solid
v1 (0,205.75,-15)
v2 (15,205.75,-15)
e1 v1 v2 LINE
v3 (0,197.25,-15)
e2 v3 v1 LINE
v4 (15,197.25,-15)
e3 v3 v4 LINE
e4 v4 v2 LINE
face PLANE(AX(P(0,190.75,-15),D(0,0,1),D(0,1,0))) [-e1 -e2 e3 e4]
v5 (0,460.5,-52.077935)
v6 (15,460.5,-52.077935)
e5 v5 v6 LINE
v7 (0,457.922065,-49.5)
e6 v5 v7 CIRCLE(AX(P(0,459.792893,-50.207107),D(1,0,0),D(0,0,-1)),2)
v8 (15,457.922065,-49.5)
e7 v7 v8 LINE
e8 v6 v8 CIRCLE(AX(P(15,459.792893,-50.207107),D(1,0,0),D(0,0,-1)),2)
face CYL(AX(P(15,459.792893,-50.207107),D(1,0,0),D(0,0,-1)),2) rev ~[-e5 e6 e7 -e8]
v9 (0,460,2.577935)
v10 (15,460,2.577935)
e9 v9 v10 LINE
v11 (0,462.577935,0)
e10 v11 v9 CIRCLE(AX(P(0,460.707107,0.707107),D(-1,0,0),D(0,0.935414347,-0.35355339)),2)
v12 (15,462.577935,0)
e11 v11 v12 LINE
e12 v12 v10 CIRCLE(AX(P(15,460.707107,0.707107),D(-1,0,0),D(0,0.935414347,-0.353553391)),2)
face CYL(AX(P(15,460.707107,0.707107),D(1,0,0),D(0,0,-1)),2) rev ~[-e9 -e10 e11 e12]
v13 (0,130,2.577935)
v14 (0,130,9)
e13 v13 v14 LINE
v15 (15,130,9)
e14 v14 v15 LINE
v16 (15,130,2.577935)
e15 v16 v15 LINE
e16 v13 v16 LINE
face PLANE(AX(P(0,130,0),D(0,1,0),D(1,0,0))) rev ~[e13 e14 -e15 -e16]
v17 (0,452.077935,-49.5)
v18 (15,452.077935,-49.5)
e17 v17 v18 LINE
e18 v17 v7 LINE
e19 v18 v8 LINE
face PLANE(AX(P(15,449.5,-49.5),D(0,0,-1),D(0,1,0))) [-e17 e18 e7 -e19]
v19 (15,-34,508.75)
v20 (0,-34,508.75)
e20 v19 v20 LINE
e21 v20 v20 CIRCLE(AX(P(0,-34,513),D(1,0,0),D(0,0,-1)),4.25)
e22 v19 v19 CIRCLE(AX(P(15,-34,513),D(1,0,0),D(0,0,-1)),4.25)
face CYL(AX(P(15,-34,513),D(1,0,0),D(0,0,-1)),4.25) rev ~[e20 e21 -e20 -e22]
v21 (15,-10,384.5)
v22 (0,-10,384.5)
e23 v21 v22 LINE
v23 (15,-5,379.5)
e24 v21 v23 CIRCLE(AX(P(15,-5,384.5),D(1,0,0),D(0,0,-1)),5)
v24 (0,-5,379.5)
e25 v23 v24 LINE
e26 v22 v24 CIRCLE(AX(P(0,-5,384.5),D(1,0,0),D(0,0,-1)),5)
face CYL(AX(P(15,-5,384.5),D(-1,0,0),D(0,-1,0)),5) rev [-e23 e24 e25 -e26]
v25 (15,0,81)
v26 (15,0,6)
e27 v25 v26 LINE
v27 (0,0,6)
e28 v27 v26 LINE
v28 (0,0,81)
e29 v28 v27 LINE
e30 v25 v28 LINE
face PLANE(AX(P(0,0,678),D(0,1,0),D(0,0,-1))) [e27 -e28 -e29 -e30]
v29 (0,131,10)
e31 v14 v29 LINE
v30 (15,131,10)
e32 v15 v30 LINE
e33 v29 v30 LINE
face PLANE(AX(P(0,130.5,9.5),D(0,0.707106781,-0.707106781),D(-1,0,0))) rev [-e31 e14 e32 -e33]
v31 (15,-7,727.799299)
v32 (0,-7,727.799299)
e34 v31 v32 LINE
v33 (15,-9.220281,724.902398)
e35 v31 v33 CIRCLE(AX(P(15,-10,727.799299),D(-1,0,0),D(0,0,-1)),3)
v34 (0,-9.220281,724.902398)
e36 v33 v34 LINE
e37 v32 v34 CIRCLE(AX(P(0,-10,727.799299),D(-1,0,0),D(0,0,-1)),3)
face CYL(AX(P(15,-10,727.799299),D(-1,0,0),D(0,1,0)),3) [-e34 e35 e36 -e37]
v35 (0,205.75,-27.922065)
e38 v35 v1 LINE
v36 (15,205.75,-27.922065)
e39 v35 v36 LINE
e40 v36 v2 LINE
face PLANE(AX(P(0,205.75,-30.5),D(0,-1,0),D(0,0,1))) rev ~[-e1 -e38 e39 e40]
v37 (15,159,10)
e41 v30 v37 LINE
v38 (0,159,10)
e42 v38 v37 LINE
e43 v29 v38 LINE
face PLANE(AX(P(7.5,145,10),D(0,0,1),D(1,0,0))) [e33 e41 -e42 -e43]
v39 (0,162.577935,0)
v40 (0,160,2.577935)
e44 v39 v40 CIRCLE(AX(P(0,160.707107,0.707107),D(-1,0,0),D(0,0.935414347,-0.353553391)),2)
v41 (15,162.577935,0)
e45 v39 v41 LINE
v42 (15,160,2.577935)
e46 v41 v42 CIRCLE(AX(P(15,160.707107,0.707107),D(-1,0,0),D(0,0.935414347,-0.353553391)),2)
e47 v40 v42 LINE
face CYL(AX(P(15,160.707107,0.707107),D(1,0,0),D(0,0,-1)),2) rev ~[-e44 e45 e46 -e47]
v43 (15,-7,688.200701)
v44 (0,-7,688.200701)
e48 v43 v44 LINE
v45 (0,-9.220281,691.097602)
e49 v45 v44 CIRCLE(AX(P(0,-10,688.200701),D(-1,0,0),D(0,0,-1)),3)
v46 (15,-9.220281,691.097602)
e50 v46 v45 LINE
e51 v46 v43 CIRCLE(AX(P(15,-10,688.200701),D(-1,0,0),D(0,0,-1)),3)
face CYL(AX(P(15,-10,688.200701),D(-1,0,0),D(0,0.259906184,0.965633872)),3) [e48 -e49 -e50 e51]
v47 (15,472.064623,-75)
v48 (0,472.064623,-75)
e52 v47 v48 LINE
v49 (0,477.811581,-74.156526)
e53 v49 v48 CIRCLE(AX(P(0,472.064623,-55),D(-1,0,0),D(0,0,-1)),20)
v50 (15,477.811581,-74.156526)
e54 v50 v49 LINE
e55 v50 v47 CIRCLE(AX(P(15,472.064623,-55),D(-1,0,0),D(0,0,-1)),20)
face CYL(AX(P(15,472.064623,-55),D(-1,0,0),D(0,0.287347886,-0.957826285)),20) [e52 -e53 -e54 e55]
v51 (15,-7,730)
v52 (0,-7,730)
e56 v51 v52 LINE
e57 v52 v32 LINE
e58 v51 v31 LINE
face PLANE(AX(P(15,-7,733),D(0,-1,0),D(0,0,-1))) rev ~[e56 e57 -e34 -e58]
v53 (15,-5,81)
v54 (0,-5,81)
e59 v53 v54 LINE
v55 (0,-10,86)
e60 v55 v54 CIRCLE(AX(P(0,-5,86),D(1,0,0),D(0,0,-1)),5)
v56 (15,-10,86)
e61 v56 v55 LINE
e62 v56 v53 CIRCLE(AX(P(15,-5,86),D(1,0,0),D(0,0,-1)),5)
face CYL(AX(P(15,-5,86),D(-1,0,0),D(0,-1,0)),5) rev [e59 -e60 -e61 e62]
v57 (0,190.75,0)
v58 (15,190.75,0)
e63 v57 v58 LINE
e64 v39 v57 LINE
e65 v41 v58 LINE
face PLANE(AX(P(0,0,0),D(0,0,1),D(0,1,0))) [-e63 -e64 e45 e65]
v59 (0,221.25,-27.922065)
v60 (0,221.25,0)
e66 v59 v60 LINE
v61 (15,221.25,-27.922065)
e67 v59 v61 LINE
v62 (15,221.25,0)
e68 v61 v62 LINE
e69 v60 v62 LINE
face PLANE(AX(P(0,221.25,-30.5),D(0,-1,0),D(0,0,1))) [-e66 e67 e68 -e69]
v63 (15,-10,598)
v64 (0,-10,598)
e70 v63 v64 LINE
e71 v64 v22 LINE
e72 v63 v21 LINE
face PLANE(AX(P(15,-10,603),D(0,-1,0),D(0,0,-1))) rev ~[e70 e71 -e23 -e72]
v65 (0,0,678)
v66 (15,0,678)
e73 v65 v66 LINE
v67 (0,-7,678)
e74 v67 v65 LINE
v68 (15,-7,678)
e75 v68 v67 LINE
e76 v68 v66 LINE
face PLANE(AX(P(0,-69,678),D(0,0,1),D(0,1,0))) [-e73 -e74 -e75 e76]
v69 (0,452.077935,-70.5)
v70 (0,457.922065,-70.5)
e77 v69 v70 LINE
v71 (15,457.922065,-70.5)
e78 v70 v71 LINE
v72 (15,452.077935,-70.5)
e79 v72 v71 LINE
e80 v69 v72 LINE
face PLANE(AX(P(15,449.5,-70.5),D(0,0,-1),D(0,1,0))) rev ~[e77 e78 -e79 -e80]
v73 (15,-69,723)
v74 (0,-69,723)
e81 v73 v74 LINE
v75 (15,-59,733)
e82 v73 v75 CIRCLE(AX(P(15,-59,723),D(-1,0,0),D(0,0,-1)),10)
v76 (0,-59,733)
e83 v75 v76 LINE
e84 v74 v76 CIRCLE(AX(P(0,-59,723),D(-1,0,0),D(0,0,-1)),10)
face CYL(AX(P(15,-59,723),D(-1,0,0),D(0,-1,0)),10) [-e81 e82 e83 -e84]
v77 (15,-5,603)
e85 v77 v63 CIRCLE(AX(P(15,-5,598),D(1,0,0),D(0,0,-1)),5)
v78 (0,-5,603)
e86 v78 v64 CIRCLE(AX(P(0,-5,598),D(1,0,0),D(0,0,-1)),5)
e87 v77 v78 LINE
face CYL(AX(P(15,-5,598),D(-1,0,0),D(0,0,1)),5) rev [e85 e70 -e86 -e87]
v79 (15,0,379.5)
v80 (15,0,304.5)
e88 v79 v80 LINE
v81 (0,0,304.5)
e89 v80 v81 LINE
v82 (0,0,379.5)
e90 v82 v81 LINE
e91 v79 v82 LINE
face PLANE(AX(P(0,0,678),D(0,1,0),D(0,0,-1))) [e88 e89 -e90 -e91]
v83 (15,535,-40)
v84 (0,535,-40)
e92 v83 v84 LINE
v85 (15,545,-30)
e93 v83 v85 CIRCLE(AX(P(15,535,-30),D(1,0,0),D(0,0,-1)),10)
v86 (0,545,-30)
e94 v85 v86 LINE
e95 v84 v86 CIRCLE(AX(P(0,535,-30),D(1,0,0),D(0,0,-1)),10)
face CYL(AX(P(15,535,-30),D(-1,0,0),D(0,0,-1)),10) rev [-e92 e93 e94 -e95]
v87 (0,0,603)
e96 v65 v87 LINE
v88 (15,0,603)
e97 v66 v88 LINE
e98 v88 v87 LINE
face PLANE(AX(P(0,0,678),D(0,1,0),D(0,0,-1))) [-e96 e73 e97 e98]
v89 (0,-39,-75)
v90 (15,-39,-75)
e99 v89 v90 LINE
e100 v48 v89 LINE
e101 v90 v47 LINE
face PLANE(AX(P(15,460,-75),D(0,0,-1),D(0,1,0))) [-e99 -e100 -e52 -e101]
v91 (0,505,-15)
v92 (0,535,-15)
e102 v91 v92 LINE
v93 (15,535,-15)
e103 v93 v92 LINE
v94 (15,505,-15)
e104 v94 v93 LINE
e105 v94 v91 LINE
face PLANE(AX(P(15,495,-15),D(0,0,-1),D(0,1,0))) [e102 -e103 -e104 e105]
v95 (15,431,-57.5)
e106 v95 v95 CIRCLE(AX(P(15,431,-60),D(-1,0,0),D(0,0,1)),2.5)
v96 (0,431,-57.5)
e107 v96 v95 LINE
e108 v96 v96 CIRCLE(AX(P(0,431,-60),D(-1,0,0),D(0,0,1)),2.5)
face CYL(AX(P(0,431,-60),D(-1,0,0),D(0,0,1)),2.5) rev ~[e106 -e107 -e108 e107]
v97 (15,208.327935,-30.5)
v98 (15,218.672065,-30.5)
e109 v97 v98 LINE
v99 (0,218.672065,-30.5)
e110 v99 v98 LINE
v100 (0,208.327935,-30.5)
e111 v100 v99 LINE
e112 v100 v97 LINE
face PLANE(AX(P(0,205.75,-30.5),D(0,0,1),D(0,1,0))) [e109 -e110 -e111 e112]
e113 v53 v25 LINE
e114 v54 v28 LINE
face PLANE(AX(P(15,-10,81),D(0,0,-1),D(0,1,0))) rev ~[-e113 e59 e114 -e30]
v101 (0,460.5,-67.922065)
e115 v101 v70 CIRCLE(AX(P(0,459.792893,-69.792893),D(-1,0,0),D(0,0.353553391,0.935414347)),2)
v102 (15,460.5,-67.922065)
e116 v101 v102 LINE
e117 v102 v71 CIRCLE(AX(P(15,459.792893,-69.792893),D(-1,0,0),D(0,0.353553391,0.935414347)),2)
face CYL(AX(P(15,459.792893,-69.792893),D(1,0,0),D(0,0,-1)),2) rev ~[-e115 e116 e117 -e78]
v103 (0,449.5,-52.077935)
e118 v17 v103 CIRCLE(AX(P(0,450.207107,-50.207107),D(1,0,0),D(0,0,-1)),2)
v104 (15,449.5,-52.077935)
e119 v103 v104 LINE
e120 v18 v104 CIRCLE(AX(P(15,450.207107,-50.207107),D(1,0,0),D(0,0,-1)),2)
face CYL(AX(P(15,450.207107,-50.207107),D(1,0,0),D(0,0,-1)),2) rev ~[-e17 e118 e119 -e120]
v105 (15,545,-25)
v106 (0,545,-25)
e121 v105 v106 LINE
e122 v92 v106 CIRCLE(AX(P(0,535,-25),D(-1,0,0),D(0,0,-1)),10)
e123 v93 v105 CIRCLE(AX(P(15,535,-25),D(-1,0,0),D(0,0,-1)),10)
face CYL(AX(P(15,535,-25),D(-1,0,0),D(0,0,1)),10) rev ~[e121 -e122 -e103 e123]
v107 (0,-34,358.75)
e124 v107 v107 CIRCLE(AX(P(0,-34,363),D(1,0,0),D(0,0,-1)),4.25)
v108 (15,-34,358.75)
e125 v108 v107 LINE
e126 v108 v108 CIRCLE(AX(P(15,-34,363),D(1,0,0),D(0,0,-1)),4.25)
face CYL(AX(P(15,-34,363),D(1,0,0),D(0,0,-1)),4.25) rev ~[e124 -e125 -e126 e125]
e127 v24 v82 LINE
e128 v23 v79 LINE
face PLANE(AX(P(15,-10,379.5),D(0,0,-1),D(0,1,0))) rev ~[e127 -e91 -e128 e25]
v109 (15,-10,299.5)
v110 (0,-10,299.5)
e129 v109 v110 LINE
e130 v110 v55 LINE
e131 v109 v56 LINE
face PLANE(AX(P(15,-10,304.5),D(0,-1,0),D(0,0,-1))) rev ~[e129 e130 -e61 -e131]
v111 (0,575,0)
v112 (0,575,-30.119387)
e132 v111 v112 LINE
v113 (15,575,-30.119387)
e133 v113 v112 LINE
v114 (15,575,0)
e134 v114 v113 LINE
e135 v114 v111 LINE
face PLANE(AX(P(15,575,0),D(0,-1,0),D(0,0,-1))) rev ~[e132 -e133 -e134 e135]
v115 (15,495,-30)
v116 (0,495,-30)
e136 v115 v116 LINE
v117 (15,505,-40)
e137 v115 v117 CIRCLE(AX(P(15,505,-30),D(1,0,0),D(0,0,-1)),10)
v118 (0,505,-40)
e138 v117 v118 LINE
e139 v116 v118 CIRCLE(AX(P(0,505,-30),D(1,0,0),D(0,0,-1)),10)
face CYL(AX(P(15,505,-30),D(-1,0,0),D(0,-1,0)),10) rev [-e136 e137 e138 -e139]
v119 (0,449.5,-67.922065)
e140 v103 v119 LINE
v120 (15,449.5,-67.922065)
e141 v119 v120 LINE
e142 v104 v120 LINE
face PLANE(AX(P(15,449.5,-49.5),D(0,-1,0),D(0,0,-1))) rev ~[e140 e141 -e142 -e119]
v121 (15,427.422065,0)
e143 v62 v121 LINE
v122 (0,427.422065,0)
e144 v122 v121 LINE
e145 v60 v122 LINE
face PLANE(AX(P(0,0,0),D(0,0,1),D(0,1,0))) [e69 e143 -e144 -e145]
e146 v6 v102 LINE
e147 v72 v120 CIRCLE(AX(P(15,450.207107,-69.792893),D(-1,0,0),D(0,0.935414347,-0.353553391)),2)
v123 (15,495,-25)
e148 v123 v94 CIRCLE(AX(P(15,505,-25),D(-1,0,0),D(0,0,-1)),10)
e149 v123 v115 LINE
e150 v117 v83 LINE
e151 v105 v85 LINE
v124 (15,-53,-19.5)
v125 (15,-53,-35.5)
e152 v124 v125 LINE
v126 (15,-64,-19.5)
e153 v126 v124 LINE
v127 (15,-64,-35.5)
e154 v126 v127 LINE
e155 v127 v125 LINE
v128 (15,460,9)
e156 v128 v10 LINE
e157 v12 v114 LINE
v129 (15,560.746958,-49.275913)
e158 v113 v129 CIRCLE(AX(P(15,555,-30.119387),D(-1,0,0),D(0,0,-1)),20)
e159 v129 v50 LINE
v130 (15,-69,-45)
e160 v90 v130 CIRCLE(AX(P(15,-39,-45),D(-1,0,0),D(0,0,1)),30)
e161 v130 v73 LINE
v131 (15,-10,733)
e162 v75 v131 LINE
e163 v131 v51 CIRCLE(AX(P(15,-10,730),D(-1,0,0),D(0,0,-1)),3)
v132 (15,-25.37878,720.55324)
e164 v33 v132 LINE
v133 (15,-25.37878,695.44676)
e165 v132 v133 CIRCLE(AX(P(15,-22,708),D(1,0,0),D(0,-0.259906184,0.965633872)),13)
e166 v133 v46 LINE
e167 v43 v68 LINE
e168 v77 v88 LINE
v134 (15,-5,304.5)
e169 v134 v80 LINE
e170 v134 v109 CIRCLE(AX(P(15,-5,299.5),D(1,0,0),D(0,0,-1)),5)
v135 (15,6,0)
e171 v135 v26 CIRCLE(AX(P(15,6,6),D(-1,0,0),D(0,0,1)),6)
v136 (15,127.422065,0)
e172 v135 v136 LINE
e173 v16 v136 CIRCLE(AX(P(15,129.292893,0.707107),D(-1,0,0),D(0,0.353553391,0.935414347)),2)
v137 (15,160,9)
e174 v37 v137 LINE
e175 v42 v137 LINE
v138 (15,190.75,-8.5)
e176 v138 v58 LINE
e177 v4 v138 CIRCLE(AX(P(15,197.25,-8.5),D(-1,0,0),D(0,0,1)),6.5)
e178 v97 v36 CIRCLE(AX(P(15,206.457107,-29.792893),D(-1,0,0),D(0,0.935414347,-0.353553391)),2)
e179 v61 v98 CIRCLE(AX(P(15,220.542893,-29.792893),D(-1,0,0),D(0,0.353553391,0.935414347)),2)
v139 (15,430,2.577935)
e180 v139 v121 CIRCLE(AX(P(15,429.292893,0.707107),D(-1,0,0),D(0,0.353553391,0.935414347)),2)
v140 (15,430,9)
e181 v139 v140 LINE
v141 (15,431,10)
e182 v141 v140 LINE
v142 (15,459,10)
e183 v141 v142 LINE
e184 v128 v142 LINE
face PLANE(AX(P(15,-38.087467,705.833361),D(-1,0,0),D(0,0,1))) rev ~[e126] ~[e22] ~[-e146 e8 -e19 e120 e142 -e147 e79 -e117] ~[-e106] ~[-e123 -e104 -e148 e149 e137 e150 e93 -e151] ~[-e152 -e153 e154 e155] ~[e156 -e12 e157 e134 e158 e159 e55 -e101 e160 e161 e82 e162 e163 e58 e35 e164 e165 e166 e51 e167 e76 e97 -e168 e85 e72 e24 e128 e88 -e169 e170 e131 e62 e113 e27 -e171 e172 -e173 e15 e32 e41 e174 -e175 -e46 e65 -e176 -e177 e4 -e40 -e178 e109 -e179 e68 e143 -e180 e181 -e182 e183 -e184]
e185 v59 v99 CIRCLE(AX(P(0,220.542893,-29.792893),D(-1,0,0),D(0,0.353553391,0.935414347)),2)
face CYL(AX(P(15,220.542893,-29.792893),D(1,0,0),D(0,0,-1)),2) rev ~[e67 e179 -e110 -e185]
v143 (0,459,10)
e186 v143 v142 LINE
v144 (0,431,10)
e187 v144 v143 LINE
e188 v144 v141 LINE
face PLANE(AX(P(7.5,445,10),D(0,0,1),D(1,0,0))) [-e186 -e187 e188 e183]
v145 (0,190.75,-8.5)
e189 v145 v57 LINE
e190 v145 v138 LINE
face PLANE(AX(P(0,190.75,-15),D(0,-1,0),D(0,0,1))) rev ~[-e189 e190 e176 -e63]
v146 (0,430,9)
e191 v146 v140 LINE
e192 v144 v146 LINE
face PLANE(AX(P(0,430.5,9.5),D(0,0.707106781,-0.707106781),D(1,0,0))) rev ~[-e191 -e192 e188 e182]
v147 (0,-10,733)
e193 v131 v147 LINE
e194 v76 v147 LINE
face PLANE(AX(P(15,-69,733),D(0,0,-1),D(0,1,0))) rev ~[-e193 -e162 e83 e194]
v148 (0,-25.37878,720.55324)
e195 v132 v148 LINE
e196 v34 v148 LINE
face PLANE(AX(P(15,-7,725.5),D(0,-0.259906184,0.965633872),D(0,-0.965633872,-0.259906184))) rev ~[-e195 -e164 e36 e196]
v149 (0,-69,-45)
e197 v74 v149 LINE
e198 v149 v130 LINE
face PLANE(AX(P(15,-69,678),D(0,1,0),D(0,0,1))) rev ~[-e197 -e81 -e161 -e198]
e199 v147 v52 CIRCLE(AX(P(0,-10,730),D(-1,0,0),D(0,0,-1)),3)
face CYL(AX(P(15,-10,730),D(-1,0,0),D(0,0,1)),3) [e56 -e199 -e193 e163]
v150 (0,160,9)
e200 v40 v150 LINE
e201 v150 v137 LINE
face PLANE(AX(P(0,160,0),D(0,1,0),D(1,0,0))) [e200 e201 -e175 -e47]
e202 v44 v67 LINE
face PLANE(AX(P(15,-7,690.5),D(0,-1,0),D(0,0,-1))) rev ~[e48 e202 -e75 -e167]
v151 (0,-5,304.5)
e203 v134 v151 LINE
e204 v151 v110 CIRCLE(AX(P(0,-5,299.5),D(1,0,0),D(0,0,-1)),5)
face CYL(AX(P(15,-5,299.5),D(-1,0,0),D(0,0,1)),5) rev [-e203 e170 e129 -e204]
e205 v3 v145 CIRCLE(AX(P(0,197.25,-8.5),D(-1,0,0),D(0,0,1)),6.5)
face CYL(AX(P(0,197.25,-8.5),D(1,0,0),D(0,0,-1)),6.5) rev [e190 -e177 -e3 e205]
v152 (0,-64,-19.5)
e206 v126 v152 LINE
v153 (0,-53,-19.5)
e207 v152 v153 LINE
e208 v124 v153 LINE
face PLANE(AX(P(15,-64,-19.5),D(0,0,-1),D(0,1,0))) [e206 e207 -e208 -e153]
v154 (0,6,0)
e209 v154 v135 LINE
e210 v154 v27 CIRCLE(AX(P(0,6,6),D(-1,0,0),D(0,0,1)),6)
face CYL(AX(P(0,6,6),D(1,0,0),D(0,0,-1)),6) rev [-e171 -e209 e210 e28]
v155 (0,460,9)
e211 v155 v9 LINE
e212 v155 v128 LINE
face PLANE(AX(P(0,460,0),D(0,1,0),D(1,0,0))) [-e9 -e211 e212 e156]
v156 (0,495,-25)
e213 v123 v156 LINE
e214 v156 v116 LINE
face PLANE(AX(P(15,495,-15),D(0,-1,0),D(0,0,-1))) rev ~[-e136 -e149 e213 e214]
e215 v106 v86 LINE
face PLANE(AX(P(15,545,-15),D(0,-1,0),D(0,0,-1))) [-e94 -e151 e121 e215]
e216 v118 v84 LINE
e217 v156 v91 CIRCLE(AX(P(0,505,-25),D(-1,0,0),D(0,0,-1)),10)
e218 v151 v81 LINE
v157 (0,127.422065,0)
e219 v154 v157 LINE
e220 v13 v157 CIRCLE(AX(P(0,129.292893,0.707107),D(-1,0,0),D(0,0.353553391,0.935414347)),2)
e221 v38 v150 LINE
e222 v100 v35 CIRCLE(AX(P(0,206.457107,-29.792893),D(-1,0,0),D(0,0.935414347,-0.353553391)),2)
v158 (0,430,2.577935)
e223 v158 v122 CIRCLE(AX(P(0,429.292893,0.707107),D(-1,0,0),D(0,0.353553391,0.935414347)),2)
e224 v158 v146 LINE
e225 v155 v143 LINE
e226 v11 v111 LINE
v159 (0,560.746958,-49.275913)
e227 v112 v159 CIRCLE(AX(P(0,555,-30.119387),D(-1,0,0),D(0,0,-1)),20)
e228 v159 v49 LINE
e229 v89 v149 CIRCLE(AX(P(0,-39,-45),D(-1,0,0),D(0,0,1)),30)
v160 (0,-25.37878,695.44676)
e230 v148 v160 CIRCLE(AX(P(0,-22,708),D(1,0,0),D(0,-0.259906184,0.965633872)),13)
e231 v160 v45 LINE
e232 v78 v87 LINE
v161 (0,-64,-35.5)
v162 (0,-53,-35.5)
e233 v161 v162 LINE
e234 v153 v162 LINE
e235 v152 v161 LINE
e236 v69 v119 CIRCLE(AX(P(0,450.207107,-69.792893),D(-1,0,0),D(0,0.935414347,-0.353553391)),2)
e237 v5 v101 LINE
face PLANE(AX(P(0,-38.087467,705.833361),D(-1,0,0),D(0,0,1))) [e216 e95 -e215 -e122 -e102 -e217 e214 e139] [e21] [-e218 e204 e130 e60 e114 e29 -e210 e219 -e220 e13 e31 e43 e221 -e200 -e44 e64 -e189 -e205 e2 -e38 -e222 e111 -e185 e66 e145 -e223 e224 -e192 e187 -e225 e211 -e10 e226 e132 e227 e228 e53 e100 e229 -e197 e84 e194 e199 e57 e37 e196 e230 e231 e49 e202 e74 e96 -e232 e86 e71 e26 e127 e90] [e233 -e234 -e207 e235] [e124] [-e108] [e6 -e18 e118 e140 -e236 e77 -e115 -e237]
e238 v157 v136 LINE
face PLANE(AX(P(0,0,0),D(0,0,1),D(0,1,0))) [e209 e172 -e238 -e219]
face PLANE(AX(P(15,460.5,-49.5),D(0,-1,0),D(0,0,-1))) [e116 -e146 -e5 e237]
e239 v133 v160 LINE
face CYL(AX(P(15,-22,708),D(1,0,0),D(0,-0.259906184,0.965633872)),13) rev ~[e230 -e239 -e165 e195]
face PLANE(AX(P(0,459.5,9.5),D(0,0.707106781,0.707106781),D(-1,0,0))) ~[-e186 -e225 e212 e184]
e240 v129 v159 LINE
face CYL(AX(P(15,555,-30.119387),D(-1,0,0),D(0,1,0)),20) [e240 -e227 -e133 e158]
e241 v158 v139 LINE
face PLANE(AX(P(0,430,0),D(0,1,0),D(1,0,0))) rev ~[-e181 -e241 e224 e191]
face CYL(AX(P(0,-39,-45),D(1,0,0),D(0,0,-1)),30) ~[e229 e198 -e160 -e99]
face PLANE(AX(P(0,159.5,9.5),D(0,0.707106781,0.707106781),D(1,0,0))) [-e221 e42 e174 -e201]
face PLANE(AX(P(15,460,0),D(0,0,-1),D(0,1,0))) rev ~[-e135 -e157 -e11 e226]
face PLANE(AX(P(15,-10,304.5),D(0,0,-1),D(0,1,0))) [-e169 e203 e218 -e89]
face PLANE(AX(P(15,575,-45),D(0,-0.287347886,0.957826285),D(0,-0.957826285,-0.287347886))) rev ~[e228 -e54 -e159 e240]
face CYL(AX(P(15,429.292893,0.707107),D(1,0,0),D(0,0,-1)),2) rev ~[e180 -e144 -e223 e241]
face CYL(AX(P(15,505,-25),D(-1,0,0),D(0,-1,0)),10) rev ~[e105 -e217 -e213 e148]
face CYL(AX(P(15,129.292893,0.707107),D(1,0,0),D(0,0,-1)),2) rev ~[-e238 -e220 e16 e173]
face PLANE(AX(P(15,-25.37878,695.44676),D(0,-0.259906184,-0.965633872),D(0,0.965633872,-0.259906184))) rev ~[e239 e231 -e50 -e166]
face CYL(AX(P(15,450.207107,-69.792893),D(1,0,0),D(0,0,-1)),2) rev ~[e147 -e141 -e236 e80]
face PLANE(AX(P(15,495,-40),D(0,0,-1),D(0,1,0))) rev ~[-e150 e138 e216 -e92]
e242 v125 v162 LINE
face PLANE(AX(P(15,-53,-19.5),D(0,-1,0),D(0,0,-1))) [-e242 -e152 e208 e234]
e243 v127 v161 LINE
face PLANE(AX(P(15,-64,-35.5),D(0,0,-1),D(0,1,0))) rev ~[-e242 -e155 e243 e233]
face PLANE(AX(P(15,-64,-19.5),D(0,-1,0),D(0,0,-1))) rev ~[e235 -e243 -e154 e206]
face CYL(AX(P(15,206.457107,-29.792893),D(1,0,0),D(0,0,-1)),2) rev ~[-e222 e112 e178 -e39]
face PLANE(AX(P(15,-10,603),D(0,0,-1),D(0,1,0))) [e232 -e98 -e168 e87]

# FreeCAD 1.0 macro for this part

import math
import FreeCAD as App
import Part
import Sketcher
Q = App.Units.Quantity


def edges_at(feature, points):
    """Names of the edges that pass closest to the given points."""
    edges = feature.Shape.Edges
    near = lambda p: min(range(len(edges)), key=lambda i: edges[i].distToShape(Part.Vertex(*p))[0])
    return sorted({f"Edge{near(p) + 1}" for p in points})

doc = App.newDocument("Part")
body = doc.addObject("PartDesign::Body", "Body")

# Sketch on YZ plane
sketch1 = body.newObject("Sketcher::SketchObject", "Sketch")
sketch1.AttachmentSupport = (doc.getObject("YZ_Plane"), [""])
sketch1.MapMode = "FlatFace"
sketch1.addGeometry(Part.LineSegment(App.Vector(0, 0, 0), App.Vector(0, 678, 0)), False)
sketch1.addGeometry(Part.LineSegment(App.Vector(0, 678, 0), App.Vector(-69, 678, 0)), False)
sketch1.addGeometry(Part.LineSegment(App.Vector(-69, 678, 0), App.Vector(-69, -75, 0)), False)
sketch1.addGeometry(Part.LineSegment(App.Vector(-69, -75, 0), App.Vector(460, -75, 0)), False)
sketch1.addGeometry(Part.LineSegment(App.Vector(460, -75, 0), App.Vector(460, 0, 0)), False)
sketch1.addGeometry(Part.LineSegment(App.Vector(460, 0, 0), App.Vector(0, 0, 0)), False)
sketch1.addConstraint(Sketcher.Constraint("Coincident", 0, 2, 1, 1))
sketch1.addConstraint(Sketcher.Constraint("Coincident", 1, 2, 2, 1))
sketch1.addConstraint(Sketcher.Constraint("Coincident", 2, 2, 3, 1))
sketch1.addConstraint(Sketcher.Constraint("Coincident", 3, 2, 4, 1))
sketch1.addConstraint(Sketcher.Constraint("Coincident", 4, 2, 5, 1))
sketch1.addConstraint(Sketcher.Constraint("Coincident", 5, 2, 0, 1))
sketch1.addConstraint(Sketcher.Constraint("Vertical", 0))
sketch1.addConstraint(Sketcher.Constraint("Horizontal", 1))
sketch1.addConstraint(Sketcher.Constraint("Vertical", 2))
sketch1.addConstraint(Sketcher.Constraint("Horizontal", 3))
sketch1.addConstraint(Sketcher.Constraint("Vertical", 4))
sketch1.addConstraint(Sketcher.Constraint("Horizontal", 5))
sketch1.addConstraint(Sketcher.Constraint("Coincident", 5, 2, -1, 1))
sketch1.addConstraint(Sketcher.Constraint("DistanceX", 1, 2, 1, 1, Q("69 mm")))
sketch1.addConstraint(Sketcher.Constraint("DistanceX", 3, 1, 3, 2, Q("529 mm")))
sketch1.addConstraint(Sketcher.Constraint("DistanceY", 0, 1, 0, 2, Q("678 mm")))
sketch1.addConstraint(Sketcher.Constraint("DistanceY", 2, 2, 2, 1, Q("753 mm")))
pad1 = body.newObject("PartDesign::Pad", "Pad")
pad1.Profile = sketch1
pad1.Length = 15
doc.recompute()

fillet = body.newObject("PartDesign::Fillet", "Fillet")
fillet.Base = (pad1, edges_at(pad1, [(7.5, -69, -75)]))
fillet.Radius = 30
doc.recompute()

fillet2 = body.newObject("PartDesign::Fillet", "Fillet001")
fillet2.Base = (fillet, edges_at(fillet, [(7.5, 0, 0)]))
fillet2.Radius = 6

# Sketch on YZ plane
sketch2 = body.newObject("Sketcher::SketchObject", "Sketch001")
sketch2.AttachmentSupport = (doc.getObject("YZ_Plane"), [""])
sketch2.MapMode = "FlatFace"
sketch2.addGeometry(Part.LineSegment(App.Vector(221.25, -30.5, 0), App.Vector(205.75, -30.5, 0)), False)
sketch2.addGeometry(Part.LineSegment(App.Vector(205.75, -30.5, 0), App.Vector(205.75, 0, 0)), False)
sketch2.addGeometry(Part.LineSegment(App.Vector(205.75, 0, 0), App.Vector(221.25, 0, 0)), False)
sketch2.addGeometry(Part.LineSegment(App.Vector(221.25, 0, 0), App.Vector(221.25, -30.5, 0)), False)
sketch2.addConstraint(Sketcher.Constraint("Coincident", 0, 2, 1, 1))
sketch2.addConstraint(Sketcher.Constraint("Coincident", 1, 2, 2, 1))
sketch2.addConstraint(Sketcher.Constraint("Coincident", 2, 2, 3, 1))
sketch2.addConstraint(Sketcher.Constraint("Coincident", 3, 2, 0, 1))
sketch2.addConstraint(Sketcher.Constraint("Horizontal", 0))
sketch2.addConstraint(Sketcher.Constraint("Vertical", 1))
sketch2.addConstraint(Sketcher.Constraint("Horizontal", 2))
sketch2.addConstraint(Sketcher.Constraint("Vertical", 3))
sketch2.addConstraint(Sketcher.Constraint("PointOnObject", 1, 2, -1))
sketch2.addConstraint(Sketcher.Constraint("DistanceX", 0, 2, 0, 1, Q("15.5 mm")))
sketch2.addConstraint(Sketcher.Constraint("DistanceY", 1, 1, 1, 2, Q("30.5 mm")))
sketch2.addConstraint(Sketcher.Constraint("DistanceX", -1, 1, 0, 2, Q("205.75 mm")))
pocket1 = body.newObject("PartDesign::Pocket", "Pocket")
pocket1.Profile = sketch2
pocket1.Type = "ThroughAll"
pocket1.Reversed = True

# Sketch on XY plane
sketch3 = body.newObject("Sketcher::SketchObject", "Sketch002")
sketch3.AttachmentSupport = (doc.getObject("XY_Plane"), [""])
sketch3.MapMode = "FlatFace"
sketch3.addGeometry(Part.LineSegment(App.Vector(0, 460, 0), App.Vector(0, 430, 0)), False)
sketch3.addGeometry(Part.LineSegment(App.Vector(0, 430, 0), App.Vector(15, 430, 0)), False)
sketch3.addGeometry(Part.LineSegment(App.Vector(15, 430, 0), App.Vector(15, 460, 0)), False)
sketch3.addGeometry(Part.LineSegment(App.Vector(15, 460, 0), App.Vector(0, 460, 0)), False)
sketch3.addGeometry(Part.LineSegment(App.Vector(0, 160, 0), App.Vector(0, 130, 0)), False)
sketch3.addGeometry(Part.LineSegment(App.Vector(0, 130, 0), App.Vector(15, 130, 0)), False)
sketch3.addGeometry(Part.LineSegment(App.Vector(15, 130, 0), App.Vector(15, 160, 0)), False)
sketch3.addGeometry(Part.LineSegment(App.Vector(15, 160, 0), App.Vector(0, 160, 0)), False)
sketch3.addConstraint(Sketcher.Constraint("Coincident", 0, 2, 1, 1))
sketch3.addConstraint(Sketcher.Constraint("Coincident", 1, 2, 2, 1))
sketch3.addConstraint(Sketcher.Constraint("Coincident", 2, 2, 3, 1))
sketch3.addConstraint(Sketcher.Constraint("Coincident", 3, 2, 0, 1))
sketch3.addConstraint(Sketcher.Constraint("Coincident", 4, 2, 5, 1))
sketch3.addConstraint(Sketcher.Constraint("Coincident", 5, 2, 6, 1))
sketch3.addConstraint(Sketcher.Constraint("Coincident", 6, 2, 7, 1))
sketch3.addConstraint(Sketcher.Constraint("Coincident", 7, 2, 4, 1))
sketch3.addConstraint(Sketcher.Constraint("Vertical", 0))
sketch3.addConstraint(Sketcher.Constraint("Horizontal", 1))
sketch3.addConstraint(Sketcher.Constraint("Vertical", 2))
sketch3.addConstraint(Sketcher.Constraint("Horizontal", 3))
sketch3.addConstraint(Sketcher.Constraint("Vertical", 4))
sketch3.addConstraint(Sketcher.Constraint("Horizontal", 5))
sketch3.addConstraint(Sketcher.Constraint("Vertical", 6))
sketch3.addConstraint(Sketcher.Constraint("Horizontal", 7))
sketch3.addConstraint(Sketcher.Constraint("PointOnObject", 0, 2, -2))
sketch3.addConstraint(Sketcher.Constraint("PointOnObject", 4, 2, -2))
sketch3.addConstraint(Sketcher.Constraint("Vertical", 2, 2, 5, 2))
sketch3.addConstraint(Sketcher.Constraint("Equal", 2, 4))
sketch3.addConstraint(Sketcher.Constraint("DistanceX", 1, 1, 1, 2, Q("15 mm")))
sketch3.addConstraint(Sketcher.Constraint("DistanceY", 0, 2, 0, 1, Q("30 mm")))
sketch3.addConstraint(Sketcher.Constraint("DistanceY", -1, 1, 0, 2, Q("430 mm")))
sketch3.addConstraint(Sketcher.Constraint("DistanceY", -1, 1, 4, 2, Q("130 mm")))
pad2 = body.newObject("PartDesign::Pad", "Pad001")
pad2.Profile = sketch3
pad2.Length = 10

# Sketch on YZ plane
sketch4 = body.newObject("Sketcher::SketchObject", "Sketch003")
sketch4.AttachmentSupport = (doc.getObject("YZ_Plane"), [""])
sketch4.MapMode = "FlatFace"
sketch4.addGeometry(Part.LineSegment(App.Vector(205.75, -15, 0), App.Vector(190.75, -15, 0)), False)
sketch4.addGeometry(Part.LineSegment(App.Vector(190.75, -15, 0), App.Vector(190.75, 0, 0)), False)
sketch4.addGeometry(Part.LineSegment(App.Vector(190.75, 0, 0), App.Vector(205.75, 0, 0)), False)
sketch4.addGeometry(Part.LineSegment(App.Vector(205.75, 0, 0), App.Vector(205.75, -15, 0)), False)
sketch4.addConstraint(Sketcher.Constraint("Coincident", 0, 2, 1, 1))
sketch4.addConstraint(Sketcher.Constraint("Coincident", 1, 2, 2, 1))
sketch4.addConstraint(Sketcher.Constraint("Coincident", 2, 2, 3, 1))
sketch4.addConstraint(Sketcher.Constraint("Coincident", 3, 2, 0, 1))
sketch4.addConstraint(Sketcher.Constraint("Horizontal", 0))
sketch4.addConstraint(Sketcher.Constraint("Vertical", 1))
sketch4.addConstraint(Sketcher.Constraint("Horizontal", 2))
sketch4.addConstraint(Sketcher.Constraint("Vertical", 3))
sketch4.addConstraint(Sketcher.Constraint("PointOnObject", 1, 2, -1))
sketch4.addConstraint(Sketcher.Constraint("Equal", 2, 1))
sketch4.addConstraint(Sketcher.Constraint("DistanceX", 0, 2, 0, 1, Q("15 mm")))
sketch4.addConstraint(Sketcher.Constraint("DistanceX", -1, 1, 0, 2, Q("190.75 mm")))
pocket2 = body.newObject("PartDesign::Pocket", "Pocket001")
pocket2.Profile = sketch4
pocket2.Type = "ThroughAll"
pocket2.Reversed = True
doc.recompute()

fillet3 = body.newObject("PartDesign::Fillet", "Fillet002")
fillet3.Base = (pocket2, edges_at(pocket2, [(7.5, 190.75, -15)]))
fillet3.Radius = 6.5

# Sketch on YZ plane
sketch5 = body.newObject("Sketcher::SketchObject", "Sketch004")
sketch5.AttachmentSupport = (doc.getObject("YZ_Plane"), [""])
sketch5.MapMode = "FlatFace"
sketch5.AttachmentOffset = App.Placement(App.Vector(0, 0, 15), App.Rotation())
sketch5.addGeometry(Part.LineSegment(App.Vector(575, 0, 0), App.Vector(460, 0, 0)), False)
sketch5.addGeometry(Part.LineSegment(App.Vector(460, 0, 0), App.Vector(460, -75, 0)), False)
sketch5.addGeometry(Part.LineSegment(App.Vector(460, -75, 0), App.Vector(575, -75, 0)), False)
sketch5.addGeometry(Part.LineSegment(App.Vector(575, -75, 0), App.Vector(575, 0, 0)), False)
sketch5.addConstraint(Sketcher.Constraint("Coincident", 0, 2, 1, 1))
sketch5.addConstraint(Sketcher.Constraint("Coincident", 1, 2, 2, 1))
sketch5.addConstraint(Sketcher.Constraint("Coincident", 2, 2, 3, 1))
sketch5.addConstraint(Sketcher.Constraint("Coincident", 3, 2, 0, 1))
sketch5.addConstraint(Sketcher.Constraint("Horizontal", 0))
sketch5.addConstraint(Sketcher.Constraint("Vertical", 1))
sketch5.addConstraint(Sketcher.Constraint("Horizontal", 2))
sketch5.addConstraint(Sketcher.Constraint("Vertical", 3))
sketch5.addConstraint(Sketcher.Constraint("PointOnObject", 0, 2, -1))
sketch5.addConstraint(Sketcher.Constraint("DistanceX", 0, 2, 0, 1, Q("115 mm")))
sketch5.addConstraint(Sketcher.Constraint("DistanceY", 1, 2, 1, 1, Q("75 mm")))
sketch5.addConstraint(Sketcher.Constraint("DistanceX", -1, 1, 0, 2, Q("460 mm")))
pad3 = body.newObject("PartDesign::Pad", "Pad002")
pad3.Profile = sketch5
pad3.Length = 15
pad3.Reversed = True

# Sketch on YZ plane
sketch6 = body.newObject("Sketcher::SketchObject", "Sketch005")
sketch6.AttachmentSupport = (doc.getObject("YZ_Plane"), [""])
sketch6.MapMode = "FlatFace"
sketch6.AttachmentOffset = App.Placement(App.Vector(0, 0, 15), App.Rotation())
sketch6.addGeometry(Part.LineSegment(App.Vector(460.5, -49.5, 0), App.Vector(449.5, -49.5, 0)), False)
sketch6.addGeometry(Part.LineSegment(App.Vector(449.5, -49.5, 0), App.Vector(449.5, -70.5, 0)), False)
sketch6.addGeometry(Part.LineSegment(App.Vector(449.5, -70.5, 0), App.Vector(460.5, -70.5, 0)), False)
sketch6.addGeometry(Part.LineSegment(App.Vector(460.5, -70.5, 0), App.Vector(460.5, -49.5, 0)), False)
sketch6.addConstraint(Sketcher.Constraint("Coincident", 0, 2, 1, 1))
sketch6.addConstraint(Sketcher.Constraint("Coincident", 1, 2, 2, 1))
sketch6.addConstraint(Sketcher.Constraint("Coincident", 2, 2, 3, 1))
sketch6.addConstraint(Sketcher.Constraint("Coincident", 3, 2, 0, 1))
sketch6.addConstraint(Sketcher.Constraint("Horizontal", 0))
sketch6.addConstraint(Sketcher.Constraint("Vertical", 1))
sketch6.addConstraint(Sketcher.Constraint("Horizontal", 2))
sketch6.addConstraint(Sketcher.Constraint("Vertical", 3))
sketch6.addConstraint(Sketcher.Constraint("DistanceX", 0, 2, 0, 1, Q("11 mm")))
sketch6.addConstraint(Sketcher.Constraint("DistanceY", 1, 2, 1, 1, Q("21 mm")))
sketch6.addConstraint(Sketcher.Constraint("DistanceX", -1, 1, 0, 2, Q("449.5 mm")))
sketch6.addConstraint(Sketcher.Constraint("DistanceY", 0, 2, -1, 1, Q("49.5 mm")))
pocket3 = body.newObject("PartDesign::Pocket", "Pocket002")
pocket3.Profile = sketch6
pocket3.Type = "ThroughAll"

# Sketch on YZ plane
sketch7 = body.newObject("Sketcher::SketchObject", "Sketch006")
sketch7.AttachmentSupport = (doc.getObject("YZ_Plane"), [""])
sketch7.MapMode = "FlatFace"
sketch7.AttachmentOffset = App.Placement(App.Vector(0, 0, 15), App.Rotation())
sketch7.addGeometry(Part.LineSegment(App.Vector(575, -45, 0), App.Vector(475, -75, 0)), False)
sketch7.addGeometry(Part.LineSegment(App.Vector(475, -75, 0), App.Vector(575, -75, 0)), False)
sketch7.addGeometry(Part.LineSegment(App.Vector(575, -75, 0), App.Vector(575, -45, 0)), False)
sketch7.addConstraint(Sketcher.Constraint("Coincident", 0, 2, 1, 1))
sketch7.addConstraint(Sketcher.Constraint("Coincident", 1, 2, 2, 1))
sketch7.addConstraint(Sketcher.Constraint("Coincident", 2, 2, 0, 1))
sketch7.addConstraint(Sketcher.Constraint("Horizontal", 1))
sketch7.addConstraint(Sketcher.Constraint("Vertical", 2))
sketch7.addConstraint(Sketcher.Constraint("DistanceX", 1, 1, 1, 2, Q("100 mm")))
sketch7.addConstraint(Sketcher.Constraint("DistanceY", 2, 1, 2, 2, Q("30 mm")))
sketch7.addConstraint(Sketcher.Constraint("DistanceX", -1, 1, 0, 2, Q("475 mm")))
sketch7.addConstraint(Sketcher.Constraint("DistanceY", 0, 2, -1, 1, Q("75 mm")))
pocket4 = body.newObject("PartDesign::Pocket", "Pocket003")
pocket4.Profile = sketch7
pocket4.Length = 15

# Sketch on YZ plane
sketch8 = body.newObject("Sketcher::SketchObject", "Sketch007")
sketch8.AttachmentSupport = (doc.getObject("YZ_Plane"), [""])
sketch8.MapMode = "FlatFace"
sketch8.AttachmentOffset = App.Placement(App.Vector(0, 0, 15), App.Rotation())
sketch8.addGeometry(Part.LineSegment(App.Vector(545, -15, 0), App.Vector(495, -15, 0)), False)
sketch8.addGeometry(Part.LineSegment(App.Vector(495, -15, 0), App.Vector(495, -40, 0)), False)
sketch8.addGeometry(Part.LineSegment(App.Vector(495, -40, 0), App.Vector(545, -40, 0)), False)
sketch8.addGeometry(Part.LineSegment(App.Vector(545, -40, 0), App.Vector(545, -15, 0)), False)
sketch8.addConstraint(Sketcher.Constraint("Coincident", 0, 2, 1, 1))
sketch8.addConstraint(Sketcher.Constraint("Coincident", 1, 2, 2, 1))
sketch8.addConstraint(Sketcher.Constraint("Coincident", 2, 2, 3, 1))
sketch8.addConstraint(Sketcher.Constraint("Coincident", 3, 2, 0, 1))
sketch8.addConstraint(Sketcher.Constraint("Horizontal", 0))
sketch8.addConstraint(Sketcher.Constraint("Vertical", 1))
sketch8.addConstraint(Sketcher.Constraint("Horizontal", 2))
sketch8.addConstraint(Sketcher.Constraint("Vertical", 3))
sketch8.addConstraint(Sketcher.Constraint("DistanceX", 0, 2, 0, 1, Q("50 mm")))
sketch8.addConstraint(Sketcher.Constraint("DistanceY", 1, 2, 1, 1, Q("25 mm")))
sketch8.addConstraint(Sketcher.Constraint("DistanceX", -1, 1, 0, 2, Q("495 mm")))
sketch8.addConstraint(Sketcher.Constraint("DistanceY", 0, 2, -1, 1, Q("15 mm")))
pocket5 = body.newObject("PartDesign::Pocket", "Pocket004")
pocket5.Profile = sketch8
pocket5.Length = 15

# Sketch on YZ plane
sketch9 = body.newObject("Sketcher::SketchObject", "Sketch008")
sketch9.AttachmentSupport = (doc.getObject("YZ_Plane"), [""])
sketch9.MapMode = "FlatFace"
sketch9.addGeometry(Part.Circle(App.Vector(431, -60, 0), App.Vector(0, 0, 1), 2.5), False)
sketch9.addConstraint(Sketcher.Constraint("Diameter", 0, Q("5 mm")))
sketch9.addConstraint(Sketcher.Constraint("DistanceX", -1, 1, 0, 3, Q("431 mm")))
sketch9.addConstraint(Sketcher.Constraint("DistanceY", 0, 3, -1, 1, Q("60 mm")))
pocket6 = body.newObject("PartDesign::Pocket", "Pocket005")
pocket6.Profile = sketch9
pocket6.Type = "ThroughAll"
pocket6.Reversed = True
doc.recompute()

fillet4 = body.newObject("PartDesign::Fillet", "Fillet003")
fillet4.Base = (pocket6, edges_at(pocket6, [(7.5, 575, -45), (7.5, 475, -75)]))
fillet4.Radius = 20
doc.recompute()

fillet5 = body.newObject("PartDesign::Fillet", "Fillet004")
fillet5.Base = (fillet4, edges_at(fillet4, [
    (7.5, 495, -15),
    (7.5, 545, -15),
    (7.5, 545, -40),
    (7.5, 495, -40),
]))
fillet5.Radius = 10
doc.recompute()

chamfer = body.newObject("PartDesign::Chamfer", "Chamfer")
chamfer.Base = (fillet5, edges_at(fillet5, [
    (7.5, 430, 10),
    (7.5, 460, 10),
    (7.5, 130, 10),
    (7.5, 160, 10),
]))
chamfer.Size = 1

# Sketch on YZ plane
sketch10 = body.newObject("Sketcher::SketchObject", "Sketch009")
sketch10.AttachmentSupport = (doc.getObject("YZ_Plane"), [""])
sketch10.MapMode = "FlatFace"
sketch10.AttachmentOffset = App.Placement(App.Vector(0, 0, 15), App.Rotation())
sketch10.addGeometry(Part.LineSegment(App.Vector(-53, -19.5, 0), App.Vector(-64, -19.5, 0)), False)
sketch10.addGeometry(Part.LineSegment(App.Vector(-64, -19.5, 0), App.Vector(-64, -35.5, 0)), False)
sketch10.addGeometry(Part.LineSegment(App.Vector(-64, -35.5, 0), App.Vector(-53, -35.5, 0)), False)
sketch10.addGeometry(Part.LineSegment(App.Vector(-53, -35.5, 0), App.Vector(-53, -19.5, 0)), False)
sketch10.addConstraint(Sketcher.Constraint("Coincident", 0, 2, 1, 1))
sketch10.addConstraint(Sketcher.Constraint("Coincident", 1, 2, 2, 1))
sketch10.addConstraint(Sketcher.Constraint("Coincident", 2, 2, 3, 1))
sketch10.addConstraint(Sketcher.Constraint("Coincident", 3, 2, 0, 1))
sketch10.addConstraint(Sketcher.Constraint("Horizontal", 0))
sketch10.addConstraint(Sketcher.Constraint("Vertical", 1))
sketch10.addConstraint(Sketcher.Constraint("Horizontal", 2))
sketch10.addConstraint(Sketcher.Constraint("Vertical", 3))
sketch10.addConstraint(Sketcher.Constraint("DistanceX", 0, 2, 0, 1, Q("11 mm")))
sketch10.addConstraint(Sketcher.Constraint("DistanceY", 1, 2, 1, 1, Q("16 mm")))
sketch10.addConstraint(Sketcher.Constraint("DistanceX", 0, 2, -1, 1, Q("64 mm")))
sketch10.addConstraint(Sketcher.Constraint("DistanceY", 0, 2, -1, 1, Q("19.5 mm")))
pocket7 = body.newObject("PartDesign::Pocket", "Pocket006")
pocket7.Profile = sketch10
pocket7.Type = "ThroughAll"

# Sketch on YZ plane
sketch11 = body.newObject("Sketcher::SketchObject", "Sketch010")
sketch11.AttachmentSupport = (doc.getObject("YZ_Plane"), [""])
sketch11.MapMode = "FlatFace"
sketch11.AttachmentOffset = App.Placement(App.Vector(0, 0, 15), App.Rotation())
sketch11.addGeometry(Part.LineSegment(App.Vector(0, 603, 0), App.Vector(-10, 603, 0)), False)
sketch11.addGeometry(Part.LineSegment(App.Vector(-10, 603, 0), App.Vector(-10, 379.5, 0)), False)
sketch11.addGeometry(Part.LineSegment(App.Vector(-10, 379.5, 0), App.Vector(0, 379.5, 0)), False)
sketch11.addGeometry(Part.LineSegment(App.Vector(0, 379.5, 0), App.Vector(0, 603, 0)), False)
sketch11.addGeometry(Part.LineSegment(App.Vector(0, 304.5, 0), App.Vector(-10, 304.5, 0)), False)
sketch11.addGeometry(Part.LineSegment(App.Vector(-10, 304.5, 0), App.Vector(-10, 81, 0)), False)
sketch11.addGeometry(Part.LineSegment(App.Vector(-10, 81, 0), App.Vector(0, 81, 0)), False)
sketch11.addGeometry(Part.LineSegment(App.Vector(0, 81, 0), App.Vector(0, 304.5, 0)), False)
sketch11.addConstraint(Sketcher.Constraint("Coincident", 0, 2, 1, 1))
sketch11.addConstraint(Sketcher.Constraint("Coincident", 1, 2, 2, 1))
sketch11.addConstraint(Sketcher.Constraint("Coincident", 2, 2, 3, 1))
sketch11.addConstraint(Sketcher.Constraint("Coincident", 3, 2, 0, 1))
sketch11.addConstraint(Sketcher.Constraint("Coincident", 4, 2, 5, 1))
sketch11.addConstraint(Sketcher.Constraint("Coincident", 5, 2, 6, 1))
sketch11.addConstraint(Sketcher.Constraint("Coincident", 6, 2, 7, 1))
sketch11.addConstraint(Sketcher.Constraint("Coincident", 7, 2, 4, 1))
sketch11.addConstraint(Sketcher.Constraint("Horizontal", 0))
sketch11.addConstraint(Sketcher.Constraint("Vertical", 1))
sketch11.addConstraint(Sketcher.Constraint("Horizontal", 2))
sketch11.addConstraint(Sketcher.Constraint("Vertical", 3))
sketch11.addConstraint(Sketcher.Constraint("Horizontal", 4))
sketch11.addConstraint(Sketcher.Constraint("Vertical", 5))
sketch11.addConstraint(Sketcher.Constraint("Horizontal", 6))
sketch11.addConstraint(Sketcher.Constraint("Vertical", 7))
sketch11.addConstraint(Sketcher.Constraint("PointOnObject", 2, 2, -2))
sketch11.addConstraint(Sketcher.Constraint("PointOnObject", 6, 2, -2))
sketch11.addConstraint(Sketcher.Constraint("Vertical", 1, 2, 4, 2))
sketch11.addConstraint(Sketcher.Constraint("Equal", 3, 5))
sketch11.addConstraint(Sketcher.Constraint("DistanceX", 0, 2, 0, 1, Q("10 mm")))
sketch11.addConstraint(Sketcher.Constraint("DistanceY", 1, 2, 1, 1, Q("223.5 mm")))
sketch11.addConstraint(Sketcher.Constraint("DistanceY", -1, 1, 0, 2, Q("603 mm")))
sketch11.addConstraint(Sketcher.Constraint("DistanceY", -1, 1, 5, 2, Q("81 mm")))
pocket8 = body.newObject("PartDesign::Pocket", "Pocket007")
pocket8.Profile = sketch11
pocket8.Length = 15
doc.recompute()

fillet6 = body.newObject("PartDesign::Fillet", "Fillet005")
fillet6.Base = (pocket8, edges_at(pocket8, [
    (7.5, -10, 603),
    (7.5, -10, 379.5),
    (7.5, -10, 81),
    (7.5, -10, 304.5),
]))
fillet6.Radius = 5

# Sketch on YZ plane
sketch12 = body.newObject("Sketcher::SketchObject", "Sketch011")
sketch12.AttachmentSupport = (doc.getObject("YZ_Plane"), [""])
sketch12.MapMode = "FlatFace"
sketch12.AttachmentOffset = App.Placement(App.Vector(0, 0, 15), App.Rotation())
sketch12.addGeometry(Part.Circle(App.Vector(129.292893, 0.707107, 0), App.Vector(0, 0, 1), 2), False)
sketch12.addGeometry(Part.Circle(App.Vector(160.707107, 0.707107, 0), App.Vector(0, 0, 1), 2), False)
sketch12.addGeometry(Part.Circle(App.Vector(429.292893, 0.707107, 0), App.Vector(0, 0, 1), 2), False)
sketch12.addGeometry(Part.Circle(App.Vector(460.707107, 0.707107, 0), App.Vector(0, 0, 1), 2), False)
sketch12.addConstraint(Sketcher.Constraint("Equal", 0, 1))
sketch12.addConstraint(Sketcher.Constraint("Equal", 1, 2))
sketch12.addConstraint(Sketcher.Constraint("Equal", 2, 3))
sketch12.addConstraint(Sketcher.Constraint("Horizontal", 0, 3, 1, 3))
sketch12.addConstraint(Sketcher.Constraint("Horizontal", 1, 3, 2, 3))
sketch12.addConstraint(Sketcher.Constraint("Horizontal", 2, 3, 3, 3))
sketch12.addConstraint(Sketcher.Constraint("Diameter", 0, Q("4 mm")))
sketch12.addConstraint(Sketcher.Constraint("DistanceX", 0, 3, 2, 3, Q("300 mm")))
sketch12.addConstraint(Sketcher.Constraint("DistanceX", 1, 3, 3, 3, Q("300 mm")))
sketch12.addConstraint(Sketcher.Constraint("DistanceX", -1, 1, 0, 3, Q("129.292893 mm")))
sketch12.addConstraint(Sketcher.Constraint("DistanceY", -1, 1, 0, 3, Q("0.707107 mm")))
sketch12.addConstraint(Sketcher.Constraint("DistanceX", -1, 1, 1, 3, Q("160.707107 mm")))
pocket9 = body.newObject("PartDesign::Pocket", "Pocket008")
pocket9.Profile = sketch12
pocket9.Type = "ThroughAll"

# Sketch on YZ plane
sketch13 = body.newObject("Sketcher::SketchObject", "Sketch012")
sketch13.AttachmentSupport = (doc.getObject("YZ_Plane"), [""])
sketch13.MapMode = "FlatFace"
sketch13.AttachmentOffset = App.Placement(App.Vector(0, 0, 15), App.Rotation())
sketch13.addGeometry(Part.Circle(App.Vector(450.207107, -50.207107, 0), App.Vector(0, 0, 1), 2), False)
sketch13.addGeometry(Part.Circle(App.Vector(459.792893, -50.207107, 0), App.Vector(0, 0, 1), 2), False)
sketch13.addGeometry(Part.Circle(App.Vector(459.792893, -69.792893, 0), App.Vector(0, 0, 1), 2), False)
sketch13.addGeometry(Part.Circle(App.Vector(450.207107, -69.792893, 0), App.Vector(0, 0, 1), 2), False)
sketch13.addConstraint(Sketcher.Constraint("Equal", 0, 1))
sketch13.addConstraint(Sketcher.Constraint("Equal", 1, 2))
sketch13.addConstraint(Sketcher.Constraint("Equal", 2, 3))
sketch13.addConstraint(Sketcher.Constraint("Horizontal", 0, 3, 1, 3))
sketch13.addConstraint(Sketcher.Constraint("Horizontal", 2, 3, 3, 3))
sketch13.addConstraint(Sketcher.Constraint("Vertical", 1, 3, 2, 3))
sketch13.addConstraint(Sketcher.Constraint("Vertical", 0, 3, 3, 3))
sketch13.addConstraint(Sketcher.Constraint("Diameter", 0, Q("4 mm")))
sketch13.addConstraint(Sketcher.Constraint("DistanceX", -1, 1, 0, 3, Q("450.207107 mm")))
sketch13.addConstraint(Sketcher.Constraint("DistanceY", 0, 3, -1, 1, Q("50.207107 mm")))
sketch13.addConstraint(Sketcher.Constraint("DistanceX", -1, 1, 1, 3, Q("459.792893 mm")))
sketch13.addConstraint(Sketcher.Constraint("DistanceY", 2, 3, -1, 1, Q("69.792893 mm")))
pocket10 = body.newObject("PartDesign::Pocket", "Pocket009")
pocket10.Profile = sketch13
pocket10.Type = "ThroughAll"

# Sketch on YZ plane
sketch14 = body.newObject("Sketcher::SketchObject", "Sketch013")
sketch14.AttachmentSupport = (doc.getObject("YZ_Plane"), [""])
sketch14.MapMode = "FlatFace"
sketch14.AttachmentOffset = App.Placement(App.Vector(0, 0, 15), App.Rotation())
sketch14.addGeometry(Part.Circle(App.Vector(206.457107, -29.792893, 0), App.Vector(0, 0, 1), 2), False)
sketch14.addGeometry(Part.Circle(App.Vector(220.542893, -29.792893, 0), App.Vector(0, 0, 1), 2), False)
sketch14.addConstraint(Sketcher.Constraint("Equal", 0, 1))
sketch14.addConstraint(Sketcher.Constraint("Horizontal", 0, 3, 1, 3))
sketch14.addConstraint(Sketcher.Constraint("Diameter", 0, Q("4 mm")))
sketch14.addConstraint(Sketcher.Constraint("DistanceX", -1, 1, 0, 3, Q("206.457107 mm")))
sketch14.addConstraint(Sketcher.Constraint("DistanceY", 0, 3, -1, 1, Q("29.792893 mm")))
sketch14.addConstraint(Sketcher.Constraint("DistanceX", -1, 1, 1, 3, Q("220.542893 mm")))
pocket11 = body.newObject("PartDesign::Pocket", "Pocket010")
pocket11.Profile = sketch14
pocket11.Type = "ThroughAll"

# Sketch on YZ plane
sketch15 = body.newObject("Sketcher::SketchObject", "Sketch014")
sketch15.AttachmentSupport = (doc.getObject("YZ_Plane"), [""])
sketch15.MapMode = "FlatFace"
sketch15.AttachmentOffset = App.Placement(App.Vector(0, 0, 15), App.Rotation())
sketch15.addGeometry(Part.LineSegment(App.Vector(-69, 733, 0), App.Vector(-69, 678, 0)), False)
sketch15.addGeometry(Part.LineSegment(App.Vector(-69, 678, 0), App.Vector(-7, 678, 0)), False)
sketch15.addGeometry(Part.LineSegment(App.Vector(-7, 678, 0), App.Vector(-7, 690.5, 0)), False)
sketch15.addGeometry(Part.LineSegment(App.Vector(-7, 690.5, 0), App.Vector(-25.37878, 695.44676, 0)), False)
sketch15.addGeometry(Part.ArcOfCircle(Part.Circle(App.Vector(-22, 708, 0), App.Vector(0, 0, 1), 13), math.radians(105.064496), math.radians(254.935504)), False)
sketch15.addGeometry(Part.LineSegment(App.Vector(-25.37878, 720.55324, 0), App.Vector(-7, 725.5, 0)), False)
sketch15.addGeometry(Part.LineSegment(App.Vector(-7, 725.5, 0), App.Vector(-7, 733, 0)), False)
sketch15.addGeometry(Part.LineSegment(App.Vector(-7, 733, 0), App.Vector(-69, 733, 0)), False)
sketch15.addConstraint(Sketcher.Constraint("Coincident", 0, 2, 1, 1))
sketch15.addConstraint(Sketcher.Constraint("Coincident", 1, 2, 2, 1))
sketch15.addConstraint(Sketcher.Constraint("Coincident", 2, 2, 3, 1))
sketch15.addConstraint(Sketcher.Constraint("Tangent", 3, 2, 4, 2))
sketch15.addConstraint(Sketcher.Constraint("Tangent", 4, 1, 5, 1))
sketch15.addConstraint(Sketcher.Constraint("Coincident", 5, 2, 6, 1))
sketch15.addConstraint(Sketcher.Constraint("Coincident", 6, 2, 7, 1))
sketch15.addConstraint(Sketcher.Constraint("Coincident", 7, 2, 0, 1))
sketch15.addConstraint(Sketcher.Constraint("Vertical", 0))
sketch15.addConstraint(Sketcher.Constraint("Horizontal", 1))
sketch15.addConstraint(Sketcher.Constraint("Vertical", 2))
sketch15.addConstraint(Sketcher.Constraint("Vertical", 6))
sketch15.addConstraint(Sketcher.Constraint("Horizontal", 7))
sketch15.addConstraint(Sketcher.Constraint("Vertical", 3, 2, 4, 1))
sketch15.addConstraint(Sketcher.Constraint("Vertical", 2, 2, 5, 2))
sketch15.addConstraint(Sketcher.Constraint("Radius", 4, Q("13 mm")))
sketch15.addConstraint(Sketcher.Constraint("DistanceX", 1, 1, 1, 2, Q("62 mm")))
sketch15.addConstraint(Sketcher.Constraint("DistanceY", 0, 2, 0, 1, Q("55 mm")))
sketch15.addConstraint(Sketcher.Constraint("DistanceY", 2, 1, 2, 2, Q("12.5 mm")))
sketch15.addConstraint(Sketcher.Constraint("DistanceY", 6, 1, 6, 2, Q("7.5 mm")))
sketch15.addConstraint(Sketcher.Constraint("DistanceX", 4, 3, -1, 1, Q("22 mm")))
sketch15.addConstraint(Sketcher.Constraint("DistanceY", -1, 1, 4, 3, Q("708 mm")))
sketch15.addConstraint(Sketcher.Constraint("DistanceX", 0, 2, -1, 1, Q("69 mm")))
pad4 = body.newObject("PartDesign::Pad", "Pad003")
pad4.Profile = sketch15
pad4.Length = 15
pad4.Reversed = True
doc.recompute()

fillet7 = body.newObject("PartDesign::Fillet", "Fillet006")
fillet7.Base = (pad4, edges_at(pad4, [(7.5, -69, 733)]))
fillet7.Radius = 10
doc.recompute()

fillet8 = body.newObject("PartDesign::Fillet", "Fillet007")
fillet8.Base = (fillet7, edges_at(fillet7, [(7.5, -7, 733), (7.5, -7, 725.5), (7.5, -7, 690.5)]))
fillet8.Radius = 3

# Sketch on YZ plane
sketch16 = body.newObject("Sketcher::SketchObject", "Sketch015")
sketch16.AttachmentSupport = (doc.getObject("YZ_Plane"), [""])
sketch16.MapMode = "FlatFace"
sketch16.AttachmentOffset = App.Placement(App.Vector(0, 0, 15), App.Rotation())
sketch16.addGeometry(Part.Circle(App.Vector(-34, 513, 0), App.Vector(0, 0, 1), 4.25), False)
sketch16.addGeometry(Part.Circle(App.Vector(-34, 363, 0), App.Vector(0, 0, 1), 4.25), False)
sketch16.addConstraint(Sketcher.Constraint("Equal", 0, 1))
sketch16.addConstraint(Sketcher.Constraint("Vertical", 0, 3, 1, 3))
sketch16.addConstraint(Sketcher.Constraint("Diameter", 0, Q("8.5 mm")))
sketch16.addConstraint(Sketcher.Constraint("DistanceX", 0, 3, -1, 1, Q("34 mm")))
sketch16.addConstraint(Sketcher.Constraint("DistanceY", -1, 1, 0, 3, Q("513 mm")))
sketch16.addConstraint(Sketcher.Constraint("DistanceY", -1, 1, 1, 3, Q("363 mm")))
pocket12 = body.newObject("PartDesign::Pocket", "Pocket011")
pocket12.Profile = sketch16
pocket12.Type = "ThroughAll"

doc.recompute()
